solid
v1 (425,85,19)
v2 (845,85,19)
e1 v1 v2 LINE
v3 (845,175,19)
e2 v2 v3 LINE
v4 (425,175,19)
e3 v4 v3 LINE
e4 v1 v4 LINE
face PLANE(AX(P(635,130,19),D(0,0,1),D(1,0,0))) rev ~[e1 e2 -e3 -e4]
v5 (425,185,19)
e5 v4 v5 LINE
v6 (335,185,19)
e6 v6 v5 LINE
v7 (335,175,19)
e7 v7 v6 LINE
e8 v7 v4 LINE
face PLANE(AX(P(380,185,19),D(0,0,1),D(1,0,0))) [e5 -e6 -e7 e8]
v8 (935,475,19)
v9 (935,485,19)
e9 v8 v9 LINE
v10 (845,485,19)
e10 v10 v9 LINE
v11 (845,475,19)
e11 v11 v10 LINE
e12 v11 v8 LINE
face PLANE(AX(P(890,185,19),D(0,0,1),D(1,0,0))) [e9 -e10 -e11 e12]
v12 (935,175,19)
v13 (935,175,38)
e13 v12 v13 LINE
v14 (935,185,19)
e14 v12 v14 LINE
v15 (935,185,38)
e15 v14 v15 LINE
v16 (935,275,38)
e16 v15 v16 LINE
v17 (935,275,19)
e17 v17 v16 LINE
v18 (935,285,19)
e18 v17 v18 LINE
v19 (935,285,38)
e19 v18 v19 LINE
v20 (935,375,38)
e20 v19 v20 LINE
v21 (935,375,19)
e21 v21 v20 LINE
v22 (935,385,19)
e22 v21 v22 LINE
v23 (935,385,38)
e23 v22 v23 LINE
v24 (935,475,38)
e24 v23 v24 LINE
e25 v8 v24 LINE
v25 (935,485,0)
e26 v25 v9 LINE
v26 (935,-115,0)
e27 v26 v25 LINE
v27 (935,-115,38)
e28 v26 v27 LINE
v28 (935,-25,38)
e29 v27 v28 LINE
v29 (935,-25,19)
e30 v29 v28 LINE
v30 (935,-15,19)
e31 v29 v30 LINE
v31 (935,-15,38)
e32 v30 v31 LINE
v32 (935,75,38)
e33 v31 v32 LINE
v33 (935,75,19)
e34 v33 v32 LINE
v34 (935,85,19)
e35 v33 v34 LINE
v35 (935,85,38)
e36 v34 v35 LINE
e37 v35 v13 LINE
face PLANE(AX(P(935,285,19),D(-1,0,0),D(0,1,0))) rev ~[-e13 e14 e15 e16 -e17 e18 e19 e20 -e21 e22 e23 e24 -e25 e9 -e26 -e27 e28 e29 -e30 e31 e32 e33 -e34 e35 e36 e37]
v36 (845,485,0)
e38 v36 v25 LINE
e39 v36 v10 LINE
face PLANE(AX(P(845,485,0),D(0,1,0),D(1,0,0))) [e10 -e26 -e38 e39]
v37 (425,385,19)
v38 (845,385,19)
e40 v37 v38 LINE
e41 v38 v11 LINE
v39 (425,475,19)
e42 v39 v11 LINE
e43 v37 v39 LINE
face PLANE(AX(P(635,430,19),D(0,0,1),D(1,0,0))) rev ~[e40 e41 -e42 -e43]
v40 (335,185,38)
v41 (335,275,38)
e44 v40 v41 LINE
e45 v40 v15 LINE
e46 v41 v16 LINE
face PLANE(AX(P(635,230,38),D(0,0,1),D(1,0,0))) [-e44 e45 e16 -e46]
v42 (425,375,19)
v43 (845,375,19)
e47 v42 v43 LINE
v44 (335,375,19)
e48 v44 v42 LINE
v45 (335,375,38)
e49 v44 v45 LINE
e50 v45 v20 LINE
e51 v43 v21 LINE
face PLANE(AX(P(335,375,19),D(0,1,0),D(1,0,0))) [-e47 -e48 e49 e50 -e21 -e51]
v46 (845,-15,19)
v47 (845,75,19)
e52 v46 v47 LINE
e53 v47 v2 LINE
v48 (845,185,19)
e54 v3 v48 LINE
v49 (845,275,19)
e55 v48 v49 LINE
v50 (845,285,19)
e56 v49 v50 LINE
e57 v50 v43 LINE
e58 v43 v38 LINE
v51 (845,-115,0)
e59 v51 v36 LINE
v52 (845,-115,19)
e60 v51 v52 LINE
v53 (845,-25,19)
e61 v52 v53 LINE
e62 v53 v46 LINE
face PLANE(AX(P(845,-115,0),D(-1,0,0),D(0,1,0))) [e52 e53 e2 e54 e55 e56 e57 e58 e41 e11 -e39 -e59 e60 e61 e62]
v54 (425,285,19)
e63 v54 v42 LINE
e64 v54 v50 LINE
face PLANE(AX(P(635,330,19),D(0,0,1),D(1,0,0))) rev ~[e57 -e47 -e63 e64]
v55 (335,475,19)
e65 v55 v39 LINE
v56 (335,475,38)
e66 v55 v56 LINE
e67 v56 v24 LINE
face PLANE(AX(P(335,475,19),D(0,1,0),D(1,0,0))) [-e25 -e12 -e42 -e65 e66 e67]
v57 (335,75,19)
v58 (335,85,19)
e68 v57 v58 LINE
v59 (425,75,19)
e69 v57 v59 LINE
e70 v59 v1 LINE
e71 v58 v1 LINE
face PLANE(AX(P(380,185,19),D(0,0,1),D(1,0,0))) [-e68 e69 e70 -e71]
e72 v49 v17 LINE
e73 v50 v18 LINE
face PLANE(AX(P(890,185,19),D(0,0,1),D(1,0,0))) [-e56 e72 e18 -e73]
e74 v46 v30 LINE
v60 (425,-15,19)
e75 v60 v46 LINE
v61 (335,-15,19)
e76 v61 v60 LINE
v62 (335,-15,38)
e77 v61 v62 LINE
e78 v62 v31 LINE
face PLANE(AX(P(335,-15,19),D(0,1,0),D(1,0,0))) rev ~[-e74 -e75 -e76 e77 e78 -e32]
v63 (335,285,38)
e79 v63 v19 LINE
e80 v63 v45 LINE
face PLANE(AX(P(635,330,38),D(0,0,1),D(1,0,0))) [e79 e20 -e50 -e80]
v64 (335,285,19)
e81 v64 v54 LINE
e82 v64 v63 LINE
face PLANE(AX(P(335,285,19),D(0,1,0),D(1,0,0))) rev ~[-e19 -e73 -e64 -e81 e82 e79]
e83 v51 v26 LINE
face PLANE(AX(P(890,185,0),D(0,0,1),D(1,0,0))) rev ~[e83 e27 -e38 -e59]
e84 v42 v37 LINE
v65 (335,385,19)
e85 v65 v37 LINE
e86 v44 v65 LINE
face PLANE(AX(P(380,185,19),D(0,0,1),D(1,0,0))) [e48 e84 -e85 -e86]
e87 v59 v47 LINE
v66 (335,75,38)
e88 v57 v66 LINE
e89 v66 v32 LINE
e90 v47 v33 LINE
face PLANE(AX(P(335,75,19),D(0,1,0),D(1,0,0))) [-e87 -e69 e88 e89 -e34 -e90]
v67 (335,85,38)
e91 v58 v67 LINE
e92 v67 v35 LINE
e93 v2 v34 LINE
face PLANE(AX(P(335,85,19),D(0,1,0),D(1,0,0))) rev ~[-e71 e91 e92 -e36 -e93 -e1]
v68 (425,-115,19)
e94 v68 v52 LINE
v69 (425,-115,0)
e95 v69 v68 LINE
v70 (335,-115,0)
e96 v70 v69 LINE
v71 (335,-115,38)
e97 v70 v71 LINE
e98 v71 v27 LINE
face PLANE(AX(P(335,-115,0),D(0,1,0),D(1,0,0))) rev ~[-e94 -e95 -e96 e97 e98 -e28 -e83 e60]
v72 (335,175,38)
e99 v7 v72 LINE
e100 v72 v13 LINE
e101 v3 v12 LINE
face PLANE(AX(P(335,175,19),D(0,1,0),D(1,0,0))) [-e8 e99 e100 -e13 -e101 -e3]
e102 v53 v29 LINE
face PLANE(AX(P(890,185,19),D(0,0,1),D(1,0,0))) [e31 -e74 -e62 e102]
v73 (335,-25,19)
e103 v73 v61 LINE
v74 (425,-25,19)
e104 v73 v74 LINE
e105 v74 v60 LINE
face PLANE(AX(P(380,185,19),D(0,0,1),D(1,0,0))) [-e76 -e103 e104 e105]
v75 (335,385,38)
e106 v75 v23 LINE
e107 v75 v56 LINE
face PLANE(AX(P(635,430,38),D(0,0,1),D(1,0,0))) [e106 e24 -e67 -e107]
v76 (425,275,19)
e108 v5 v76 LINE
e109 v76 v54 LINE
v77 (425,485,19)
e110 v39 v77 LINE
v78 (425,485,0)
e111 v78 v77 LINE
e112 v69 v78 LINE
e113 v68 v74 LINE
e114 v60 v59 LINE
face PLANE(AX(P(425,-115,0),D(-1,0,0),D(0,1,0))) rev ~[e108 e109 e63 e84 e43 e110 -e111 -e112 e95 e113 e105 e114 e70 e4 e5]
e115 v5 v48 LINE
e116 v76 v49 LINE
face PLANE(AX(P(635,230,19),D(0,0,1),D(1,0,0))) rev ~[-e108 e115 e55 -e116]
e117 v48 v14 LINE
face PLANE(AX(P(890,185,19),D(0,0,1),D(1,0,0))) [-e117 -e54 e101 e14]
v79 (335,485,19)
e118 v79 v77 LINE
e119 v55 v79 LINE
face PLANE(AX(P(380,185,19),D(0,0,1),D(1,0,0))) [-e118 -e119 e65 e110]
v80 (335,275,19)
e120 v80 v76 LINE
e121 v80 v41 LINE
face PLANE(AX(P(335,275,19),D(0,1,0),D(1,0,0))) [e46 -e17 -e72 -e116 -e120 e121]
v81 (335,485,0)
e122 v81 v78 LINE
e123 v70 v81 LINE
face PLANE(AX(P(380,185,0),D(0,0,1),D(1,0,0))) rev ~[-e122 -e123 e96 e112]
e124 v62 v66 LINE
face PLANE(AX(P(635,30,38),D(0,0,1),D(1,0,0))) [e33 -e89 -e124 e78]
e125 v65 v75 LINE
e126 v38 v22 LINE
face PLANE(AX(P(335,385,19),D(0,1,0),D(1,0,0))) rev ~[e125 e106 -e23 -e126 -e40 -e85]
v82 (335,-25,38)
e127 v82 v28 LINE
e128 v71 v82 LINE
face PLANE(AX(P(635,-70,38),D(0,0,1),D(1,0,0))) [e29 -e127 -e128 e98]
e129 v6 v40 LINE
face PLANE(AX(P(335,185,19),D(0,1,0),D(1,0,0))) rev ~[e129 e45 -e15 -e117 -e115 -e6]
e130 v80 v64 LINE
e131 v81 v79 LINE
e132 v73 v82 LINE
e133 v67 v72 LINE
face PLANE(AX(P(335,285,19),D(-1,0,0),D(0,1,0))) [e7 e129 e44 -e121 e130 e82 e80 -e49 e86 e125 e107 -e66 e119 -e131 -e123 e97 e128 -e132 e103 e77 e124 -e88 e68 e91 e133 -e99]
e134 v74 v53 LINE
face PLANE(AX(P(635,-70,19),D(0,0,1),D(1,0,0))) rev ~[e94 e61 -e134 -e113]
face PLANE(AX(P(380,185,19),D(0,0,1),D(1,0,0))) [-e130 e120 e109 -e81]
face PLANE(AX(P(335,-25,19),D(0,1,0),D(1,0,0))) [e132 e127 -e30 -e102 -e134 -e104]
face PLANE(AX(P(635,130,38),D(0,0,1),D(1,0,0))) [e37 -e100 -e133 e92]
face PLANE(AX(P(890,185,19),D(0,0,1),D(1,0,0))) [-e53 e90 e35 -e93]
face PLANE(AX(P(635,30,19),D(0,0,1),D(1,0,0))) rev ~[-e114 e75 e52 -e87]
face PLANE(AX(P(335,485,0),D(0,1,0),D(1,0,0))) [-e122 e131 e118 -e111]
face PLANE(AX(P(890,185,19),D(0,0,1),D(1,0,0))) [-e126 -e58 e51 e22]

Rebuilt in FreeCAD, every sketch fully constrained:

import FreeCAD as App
import Part
import Sketcher
from FreeCAD import Vector
Q = App.Units.Quantity

doc = App.newDocument("Part")
body = doc.addObject("PartDesign::Body", "Body")

# Sketch on XY plane
sketch1 = body.newObject("Sketcher::SketchObject", "Sketch")
sketch1.AttachmentSupport = (doc.getObject("XY_Plane"), [""])
sketch1.MapMode = "FlatFace"
sketch1.addGeometry([
    Part.LineSegment(Vector(0, 190, 0), Vector(0, 100, 0)),
    Part.LineSegment(Vector(0, 100, 0), Vector(600, 100, 0)),
    Part.LineSegment(Vector(600, 100, 0), Vector(600, 190, 0)),
    Part.LineSegment(Vector(600, 190, 0), Vector(0, 190, 0)),
], False)
sketch1.addConstraint([
    Sketcher.Constraint("Coincident", 0, 2, 1, 1),
    Sketcher.Constraint("Coincident", 1, 2, 2, 1),
    Sketcher.Constraint("Coincident", 2, 2, 3, 1),
    Sketcher.Constraint("Coincident", 3, 2, 0, 1),
    Sketcher.Constraint("Vertical", 0),
    Sketcher.Constraint("Horizontal", 1),
    Sketcher.Constraint("Vertical", 2),
    Sketcher.Constraint("Horizontal", 3),
    Sketcher.Constraint("PointOnObject", 0, 2, -2),
    Sketcher.Constraint("DistanceX", 1, 1, 1, 2, Q("600 mm")),
    Sketcher.Constraint("DistanceY", 0, 2, 0, 1, Q("90 mm")),
    Sketcher.Constraint("DistanceY", -1, 1, 0, 2, Q("100 mm")),
])
pad1 = body.newObject("PartDesign::Pad", "Pad")
pad1.Profile = sketch1
pad1.Length = 19
body2 = doc.addObject("PartDesign::Body", "Body001")

# Sketch on XY plane
sketch2 = body2.newObject("Sketcher::SketchObject", "Sketch001")
sketch2.AttachmentSupport = (doc.getObject("XY_Plane001"), [""])
sketch2.MapMode = "FlatFace"
sketch2.addGeometry([
    Part.LineSegment(Vector(0, 90, 0), Vector(0, 0, 0)),
    Part.LineSegment(Vector(0, 0, 0), Vector(600, 0, 0)),
    Part.LineSegment(Vector(600, 0, 0), Vector(600, 90, 0)),
    Part.LineSegment(Vector(600, 90, 0), Vector(0, 90, 0)),
], False)
sketch2.addConstraint([
    Sketcher.Constraint("Coincident", 0, 2, 1, 1),
    Sketcher.Constraint("Coincident", 1, 2, 2, 1),
    Sketcher.Constraint("Coincident", 2, 2, 3, 1),
    Sketcher.Constraint("Coincident", 3, 2, 0, 1),
    Sketcher.Constraint("Vertical", 0),
    Sketcher.Constraint("Horizontal", 1),
    Sketcher.Constraint("Vertical", 2),
    Sketcher.Constraint("Horizontal", 3),
    Sketcher.Constraint("Coincident", 0, 2, -1, 1),
    Sketcher.Constraint("DistanceX", 1, 1, 1, 2, Q("600 mm")),
    Sketcher.Constraint("DistanceY", 0, 2, 0, 1, Q("90 mm")),
])
pad2 = body2.newObject("PartDesign::Pad", "Pad001")
pad2.Profile = sketch2
pad2.Length = 19
body3 = doc.addObject("PartDesign::Body", "Body002")

# Sketch on XY plane
sketch3 = body3.newObject("Sketcher::SketchObject", "Sketch002")
sketch3.AttachmentSupport = (doc.getObject("XY_Plane002"), [""])
sketch3.MapMode = "FlatFace"
sketch3.AttachmentOffset = App.Placement(Vector(0, 0, -19), App.Rotation())
sketch3.addGeometry([
    Part.LineSegment(Vector(0, 600, 0), Vector(0, 0, 0)),
    Part.LineSegment(Vector(0, 0, 0), Vector(90, 0, 0)),
    Part.LineSegment(Vector(90, 0, 0), Vector(90, 600, 0)),
    Part.LineSegment(Vector(90, 600, 0), Vector(0, 600, 0)),
], False)
sketch3.addConstraint([
    Sketcher.Constraint("Coincident", 0, 2, 1, 1),
    Sketcher.Constraint("Coincident", 1, 2, 2, 1),
    Sketcher.Constraint("Coincident", 2, 2, 3, 1),
    Sketcher.Constraint("Coincident", 3, 2, 0, 1),
    Sketcher.Constraint("Vertical", 0),
    Sketcher.Constraint("Horizontal", 1),
    Sketcher.Constraint("Vertical", 2),
    Sketcher.Constraint("Horizontal", 3),
    Sketcher.Constraint("Coincident", 0, 2, -1, 1),
    Sketcher.Constraint("DistanceX", 1, 1, 1, 2, Q("90 mm")),
    Sketcher.Constraint("DistanceY", 0, 2, 0, 1, Q("600 mm")),
])
pad3 = body3.newObject("PartDesign::Pad", "Pad002")
pad3.Profile = sketch3
pad3.Length = 19
body4 = doc.addObject("PartDesign::Body", "Body003")

# Sketch on XY plane
sketch4 = body4.newObject("Sketcher::SketchObject", "Sketch003")
sketch4.AttachmentSupport = (doc.getObject("XY_Plane003"), [""])
sketch4.MapMode = "FlatFace"
sketch4.addGeometry([
    Part.LineSegment(Vector(0, 390, 0), Vector(0, 300, 0)),
    Part.LineSegment(Vector(0, 300, 0), Vector(600, 300, 0)),
    Part.LineSegment(Vector(600, 300, 0), Vector(600, 390, 0)),
    Part.LineSegment(Vector(600, 390, 0), Vector(0, 390, 0)),
], False)
sketch4.addConstraint([
    Sketcher.Constraint("Coincident", 0, 2, 1, 1),
    Sketcher.Constraint("Coincident", 1, 2, 2, 1),
    Sketcher.Constraint("Coincident", 2, 2, 3, 1),
    Sketcher.Constraint("Coincident", 3, 2, 0, 1),
    Sketcher.Constraint("Vertical", 0),
    Sketcher.Constraint("Horizontal", 1),
    Sketcher.Constraint("Vertical", 2),
    Sketcher.Constraint("Horizontal", 3),
    Sketcher.Constraint("PointOnObject", 0, 2, -2),
    Sketcher.Constraint("DistanceX", 1, 1, 1, 2, Q("600 mm")),
    Sketcher.Constraint("DistanceY", 0, 2, 0, 1, Q("90 mm")),
    Sketcher.Constraint("DistanceY", -1, 1, 0, 2, Q("300 mm")),
])
pad4 = body4.newObject("PartDesign::Pad", "Pad003")
pad4.Profile = sketch4
pad4.Length = 19
body5 = doc.addObject("PartDesign::Body", "Body004")

# Sketch on XY plane
sketch5 = body5.newObject("Sketcher::SketchObject", "Sketch004")
sketch5.AttachmentSupport = (doc.getObject("XY_Plane004"), [""])
sketch5.MapMode = "FlatFace"
sketch5.addGeometry([
    Part.LineSegment(Vector(0, 290, 0), Vector(0, 200, 0)),
    Part.LineSegment(Vector(0, 200, 0), Vector(600, 200, 0)),
    Part.LineSegment(Vector(600, 200, 0), Vector(600, 290, 0)),
    Part.LineSegment(Vector(600, 290, 0), Vector(0, 290, 0)),
], False)
sketch5.addConstraint([
    Sketcher.Constraint("Coincident", 0, 2, 1, 1),
    Sketcher.Constraint("Coincident", 1, 2, 2, 1),
    Sketcher.Constraint("Coincident", 2, 2, 3, 1),
    Sketcher.Constraint("Coincident", 3, 2, 0, 1),
    Sketcher.Constraint("Vertical", 0),
    Sketcher.Constraint("Horizontal", 1),
    Sketcher.Constraint("Vertical", 2),
    Sketcher.Constraint("Horizontal", 3),
    Sketcher.Constraint("PointOnObject", 0, 2, -2),
    Sketcher.Constraint("DistanceX", 1, 1, 1, 2, Q("600 mm")),
    Sketcher.Constraint("DistanceY", 0, 2, 0, 1, Q("90 mm")),
    Sketcher.Constraint("DistanceY", -1, 1, 0, 2, Q("200 mm")),
])
pad5 = body5.newObject("PartDesign::Pad", "Pad004")
pad5.Profile = sketch5
pad5.Length = 19
body6 = doc.addObject("PartDesign::Body", "Body005")

# Sketch on XY plane
sketch6 = body6.newObject("Sketcher::SketchObject", "Sketch005")
sketch6.AttachmentSupport = (doc.getObject("XY_Plane005"), [""])
sketch6.MapMode = "FlatFace"
sketch6.addGeometry([
    Part.LineSegment(Vector(0, 590, 0), Vector(0, 500, 0)),
    Part.LineSegment(Vector(0, 500, 0), Vector(600, 500, 0)),
    Part.LineSegment(Vector(600, 500, 0), Vector(600, 590, 0)),
    Part.LineSegment(Vector(600, 590, 0), Vector(0, 590, 0)),
], False)
sketch6.addConstraint([
    Sketcher.Constraint("Coincident", 0, 2, 1, 1),
    Sketcher.Constraint("Coincident", 1, 2, 2, 1),
    Sketcher.Constraint("Coincident", 2, 2, 3, 1),
    Sketcher.Constraint("Coincident", 3, 2, 0, 1),
    Sketcher.Constraint("Vertical", 0),
    Sketcher.Constraint("Horizontal", 1),
    Sketcher.Constraint("Vertical", 2),
    Sketcher.Constraint("Horizontal", 3),
    Sketcher.Constraint("PointOnObject", 0, 2, -2),
    Sketcher.Constraint("DistanceX", 1, 1, 1, 2, Q("600 mm")),
    Sketcher.Constraint("DistanceY", 0, 2, 0, 1, Q("90 mm")),
    Sketcher.Constraint("DistanceY", -1, 1, 0, 2, Q("500 mm")),
])
pad6 = body6.newObject("PartDesign::Pad", "Pad005")
pad6.Profile = sketch6
pad6.Length = 19
body7 = doc.addObject("PartDesign::Body", "Body006")

# Sketch on XY plane
sketch7 = body7.newObject("Sketcher::SketchObject", "Sketch006")
sketch7.AttachmentSupport = (doc.getObject("XY_Plane006"), [""])
sketch7.MapMode = "FlatFace"
sketch7.addGeometry([
    Part.LineSegment(Vector(0, 490, 0), Vector(0, 400, 0)),
    Part.LineSegment(Vector(0, 400, 0), Vector(600, 400, 0)),
    Part.LineSegment(Vector(600, 400, 0), Vector(600, 490, 0)),
    Part.LineSegment(Vector(600, 490, 0), Vector(0, 490, 0)),
], False)
sketch7.addConstraint([
    Sketcher.Constraint("Coincident", 0, 2, 1, 1),
    Sketcher.Constraint("Coincident", 1, 2, 2, 1),
    Sketcher.Constraint("Coincident", 2, 2, 3, 1),
    Sketcher.Constraint("Coincident", 3, 2, 0, 1),
    Sketcher.Constraint("Vertical", 0),
    Sketcher.Constraint("Horizontal", 1),
    Sketcher.Constraint("Vertical", 2),
    Sketcher.Constraint("Horizontal", 3),
    Sketcher.Constraint("PointOnObject", 0, 2, -2),
    Sketcher.Constraint("DistanceX", 1, 1, 1, 2, Q("600 mm")),
    Sketcher.Constraint("DistanceY", 0, 2, 0, 1, Q("90 mm")),
    Sketcher.Constraint("DistanceY", -1, 1, 0, 2, Q("400 mm")),
])
pad7 = body7.newObject("PartDesign::Pad", "Pad006")
pad7.Profile = sketch7
pad7.Length = 19
body8 = doc.addObject("PartDesign::Body", "Body007")

# Sketch on XY plane
sketch8 = body8.newObject("Sketcher::SketchObject", "Sketch007")
sketch8.AttachmentSupport = (doc.getObject("XY_Plane007"), [""])
sketch8.MapMode = "FlatFace"
sketch8.AttachmentOffset = App.Placement(Vector(0, 0, -19), App.Rotation())
sketch8.addGeometry([
    Part.LineSegment(Vector(510, 600, 0), Vector(510, 0, 0)),
    Part.LineSegment(Vector(510, 0, 0), Vector(600, 0, 0)),
    Part.LineSegment(Vector(600, 0, 0), Vector(600, 600, 0)),
    Part.LineSegment(Vector(600, 600, 0), Vector(510, 600, 0)),
], False)
sketch8.addConstraint([
    Sketcher.Constraint("Coincident", 0, 2, 1, 1),
    Sketcher.Constraint("Coincident", 1, 2, 2, 1),
    Sketcher.Constraint("Coincident", 2, 2, 3, 1),
    Sketcher.Constraint("Coincident", 3, 2, 0, 1),
    Sketcher.Constraint("Vertical", 0),
    Sketcher.Constraint("Horizontal", 1),
    Sketcher.Constraint("Vertical", 2),
    Sketcher.Constraint("Horizontal", 3),
    Sketcher.Constraint("PointOnObject", 0, 2, -1),
    Sketcher.Constraint("DistanceX", 1, 1, 1, 2, Q("90 mm")),
    Sketcher.Constraint("DistanceY", 0, 2, 0, 1, Q("600 mm")),
    Sketcher.Constraint("DistanceX", -1, 1, 0, 2, Q("510 mm")),
])
pad8 = body8.newObject("PartDesign::Pad", "Pad007")
pad8.Profile = sketch8
pad8.Length = 19
doc.recompute()

boolean = body8.newObject("PartDesign::Boolean", "Boolean")
boolean.Type = "Fuse"
boolean.addObjects([body])
doc.recompute()

boolean2 = body8.newObject("PartDesign::Boolean", "Boolean001")
boolean2.Type = "Fuse"
boolean2.addObjects([body2])
doc.recompute()

boolean3 = body8.newObject("PartDesign::Boolean", "Boolean002")
boolean3.Type = "Fuse"
boolean3.addObjects([body3])
doc.recompute()

boolean4 = body8.newObject("PartDesign::Boolean", "Boolean003")
boolean4.Type = "Fuse"
boolean4.addObjects([body4])
doc.recompute()

boolean5 = body8.newObject("PartDesign::Boolean", "Boolean004")
boolean5.Type = "Fuse"
boolean5.addObjects([body5])
doc.recompute()

boolean6 = body8.newObject("PartDesign::Boolean", "Boolean005")
boolean6.Type = "Fuse"
boolean6.addObjects([body6])
doc.recompute()

boolean7 = body8.newObject("PartDesign::Boolean", "Boolean006")
boolean7.Type = "Fuse"
boolean7.addObjects([body7])
body9 = doc.addObject("PartDesign::Body", "Body008")
doc.recompute()

body8.Placement = App.Placement(Vector(335, -115, 19), App.Rotation(Vector(0, 0, 1), 0))
boolean8 = body9.newObject("PartDesign::Boolean", "Boolean007")
boolean8.Type = "Fuse"
boolean8.addObjects([body8])

doc.recompute()
